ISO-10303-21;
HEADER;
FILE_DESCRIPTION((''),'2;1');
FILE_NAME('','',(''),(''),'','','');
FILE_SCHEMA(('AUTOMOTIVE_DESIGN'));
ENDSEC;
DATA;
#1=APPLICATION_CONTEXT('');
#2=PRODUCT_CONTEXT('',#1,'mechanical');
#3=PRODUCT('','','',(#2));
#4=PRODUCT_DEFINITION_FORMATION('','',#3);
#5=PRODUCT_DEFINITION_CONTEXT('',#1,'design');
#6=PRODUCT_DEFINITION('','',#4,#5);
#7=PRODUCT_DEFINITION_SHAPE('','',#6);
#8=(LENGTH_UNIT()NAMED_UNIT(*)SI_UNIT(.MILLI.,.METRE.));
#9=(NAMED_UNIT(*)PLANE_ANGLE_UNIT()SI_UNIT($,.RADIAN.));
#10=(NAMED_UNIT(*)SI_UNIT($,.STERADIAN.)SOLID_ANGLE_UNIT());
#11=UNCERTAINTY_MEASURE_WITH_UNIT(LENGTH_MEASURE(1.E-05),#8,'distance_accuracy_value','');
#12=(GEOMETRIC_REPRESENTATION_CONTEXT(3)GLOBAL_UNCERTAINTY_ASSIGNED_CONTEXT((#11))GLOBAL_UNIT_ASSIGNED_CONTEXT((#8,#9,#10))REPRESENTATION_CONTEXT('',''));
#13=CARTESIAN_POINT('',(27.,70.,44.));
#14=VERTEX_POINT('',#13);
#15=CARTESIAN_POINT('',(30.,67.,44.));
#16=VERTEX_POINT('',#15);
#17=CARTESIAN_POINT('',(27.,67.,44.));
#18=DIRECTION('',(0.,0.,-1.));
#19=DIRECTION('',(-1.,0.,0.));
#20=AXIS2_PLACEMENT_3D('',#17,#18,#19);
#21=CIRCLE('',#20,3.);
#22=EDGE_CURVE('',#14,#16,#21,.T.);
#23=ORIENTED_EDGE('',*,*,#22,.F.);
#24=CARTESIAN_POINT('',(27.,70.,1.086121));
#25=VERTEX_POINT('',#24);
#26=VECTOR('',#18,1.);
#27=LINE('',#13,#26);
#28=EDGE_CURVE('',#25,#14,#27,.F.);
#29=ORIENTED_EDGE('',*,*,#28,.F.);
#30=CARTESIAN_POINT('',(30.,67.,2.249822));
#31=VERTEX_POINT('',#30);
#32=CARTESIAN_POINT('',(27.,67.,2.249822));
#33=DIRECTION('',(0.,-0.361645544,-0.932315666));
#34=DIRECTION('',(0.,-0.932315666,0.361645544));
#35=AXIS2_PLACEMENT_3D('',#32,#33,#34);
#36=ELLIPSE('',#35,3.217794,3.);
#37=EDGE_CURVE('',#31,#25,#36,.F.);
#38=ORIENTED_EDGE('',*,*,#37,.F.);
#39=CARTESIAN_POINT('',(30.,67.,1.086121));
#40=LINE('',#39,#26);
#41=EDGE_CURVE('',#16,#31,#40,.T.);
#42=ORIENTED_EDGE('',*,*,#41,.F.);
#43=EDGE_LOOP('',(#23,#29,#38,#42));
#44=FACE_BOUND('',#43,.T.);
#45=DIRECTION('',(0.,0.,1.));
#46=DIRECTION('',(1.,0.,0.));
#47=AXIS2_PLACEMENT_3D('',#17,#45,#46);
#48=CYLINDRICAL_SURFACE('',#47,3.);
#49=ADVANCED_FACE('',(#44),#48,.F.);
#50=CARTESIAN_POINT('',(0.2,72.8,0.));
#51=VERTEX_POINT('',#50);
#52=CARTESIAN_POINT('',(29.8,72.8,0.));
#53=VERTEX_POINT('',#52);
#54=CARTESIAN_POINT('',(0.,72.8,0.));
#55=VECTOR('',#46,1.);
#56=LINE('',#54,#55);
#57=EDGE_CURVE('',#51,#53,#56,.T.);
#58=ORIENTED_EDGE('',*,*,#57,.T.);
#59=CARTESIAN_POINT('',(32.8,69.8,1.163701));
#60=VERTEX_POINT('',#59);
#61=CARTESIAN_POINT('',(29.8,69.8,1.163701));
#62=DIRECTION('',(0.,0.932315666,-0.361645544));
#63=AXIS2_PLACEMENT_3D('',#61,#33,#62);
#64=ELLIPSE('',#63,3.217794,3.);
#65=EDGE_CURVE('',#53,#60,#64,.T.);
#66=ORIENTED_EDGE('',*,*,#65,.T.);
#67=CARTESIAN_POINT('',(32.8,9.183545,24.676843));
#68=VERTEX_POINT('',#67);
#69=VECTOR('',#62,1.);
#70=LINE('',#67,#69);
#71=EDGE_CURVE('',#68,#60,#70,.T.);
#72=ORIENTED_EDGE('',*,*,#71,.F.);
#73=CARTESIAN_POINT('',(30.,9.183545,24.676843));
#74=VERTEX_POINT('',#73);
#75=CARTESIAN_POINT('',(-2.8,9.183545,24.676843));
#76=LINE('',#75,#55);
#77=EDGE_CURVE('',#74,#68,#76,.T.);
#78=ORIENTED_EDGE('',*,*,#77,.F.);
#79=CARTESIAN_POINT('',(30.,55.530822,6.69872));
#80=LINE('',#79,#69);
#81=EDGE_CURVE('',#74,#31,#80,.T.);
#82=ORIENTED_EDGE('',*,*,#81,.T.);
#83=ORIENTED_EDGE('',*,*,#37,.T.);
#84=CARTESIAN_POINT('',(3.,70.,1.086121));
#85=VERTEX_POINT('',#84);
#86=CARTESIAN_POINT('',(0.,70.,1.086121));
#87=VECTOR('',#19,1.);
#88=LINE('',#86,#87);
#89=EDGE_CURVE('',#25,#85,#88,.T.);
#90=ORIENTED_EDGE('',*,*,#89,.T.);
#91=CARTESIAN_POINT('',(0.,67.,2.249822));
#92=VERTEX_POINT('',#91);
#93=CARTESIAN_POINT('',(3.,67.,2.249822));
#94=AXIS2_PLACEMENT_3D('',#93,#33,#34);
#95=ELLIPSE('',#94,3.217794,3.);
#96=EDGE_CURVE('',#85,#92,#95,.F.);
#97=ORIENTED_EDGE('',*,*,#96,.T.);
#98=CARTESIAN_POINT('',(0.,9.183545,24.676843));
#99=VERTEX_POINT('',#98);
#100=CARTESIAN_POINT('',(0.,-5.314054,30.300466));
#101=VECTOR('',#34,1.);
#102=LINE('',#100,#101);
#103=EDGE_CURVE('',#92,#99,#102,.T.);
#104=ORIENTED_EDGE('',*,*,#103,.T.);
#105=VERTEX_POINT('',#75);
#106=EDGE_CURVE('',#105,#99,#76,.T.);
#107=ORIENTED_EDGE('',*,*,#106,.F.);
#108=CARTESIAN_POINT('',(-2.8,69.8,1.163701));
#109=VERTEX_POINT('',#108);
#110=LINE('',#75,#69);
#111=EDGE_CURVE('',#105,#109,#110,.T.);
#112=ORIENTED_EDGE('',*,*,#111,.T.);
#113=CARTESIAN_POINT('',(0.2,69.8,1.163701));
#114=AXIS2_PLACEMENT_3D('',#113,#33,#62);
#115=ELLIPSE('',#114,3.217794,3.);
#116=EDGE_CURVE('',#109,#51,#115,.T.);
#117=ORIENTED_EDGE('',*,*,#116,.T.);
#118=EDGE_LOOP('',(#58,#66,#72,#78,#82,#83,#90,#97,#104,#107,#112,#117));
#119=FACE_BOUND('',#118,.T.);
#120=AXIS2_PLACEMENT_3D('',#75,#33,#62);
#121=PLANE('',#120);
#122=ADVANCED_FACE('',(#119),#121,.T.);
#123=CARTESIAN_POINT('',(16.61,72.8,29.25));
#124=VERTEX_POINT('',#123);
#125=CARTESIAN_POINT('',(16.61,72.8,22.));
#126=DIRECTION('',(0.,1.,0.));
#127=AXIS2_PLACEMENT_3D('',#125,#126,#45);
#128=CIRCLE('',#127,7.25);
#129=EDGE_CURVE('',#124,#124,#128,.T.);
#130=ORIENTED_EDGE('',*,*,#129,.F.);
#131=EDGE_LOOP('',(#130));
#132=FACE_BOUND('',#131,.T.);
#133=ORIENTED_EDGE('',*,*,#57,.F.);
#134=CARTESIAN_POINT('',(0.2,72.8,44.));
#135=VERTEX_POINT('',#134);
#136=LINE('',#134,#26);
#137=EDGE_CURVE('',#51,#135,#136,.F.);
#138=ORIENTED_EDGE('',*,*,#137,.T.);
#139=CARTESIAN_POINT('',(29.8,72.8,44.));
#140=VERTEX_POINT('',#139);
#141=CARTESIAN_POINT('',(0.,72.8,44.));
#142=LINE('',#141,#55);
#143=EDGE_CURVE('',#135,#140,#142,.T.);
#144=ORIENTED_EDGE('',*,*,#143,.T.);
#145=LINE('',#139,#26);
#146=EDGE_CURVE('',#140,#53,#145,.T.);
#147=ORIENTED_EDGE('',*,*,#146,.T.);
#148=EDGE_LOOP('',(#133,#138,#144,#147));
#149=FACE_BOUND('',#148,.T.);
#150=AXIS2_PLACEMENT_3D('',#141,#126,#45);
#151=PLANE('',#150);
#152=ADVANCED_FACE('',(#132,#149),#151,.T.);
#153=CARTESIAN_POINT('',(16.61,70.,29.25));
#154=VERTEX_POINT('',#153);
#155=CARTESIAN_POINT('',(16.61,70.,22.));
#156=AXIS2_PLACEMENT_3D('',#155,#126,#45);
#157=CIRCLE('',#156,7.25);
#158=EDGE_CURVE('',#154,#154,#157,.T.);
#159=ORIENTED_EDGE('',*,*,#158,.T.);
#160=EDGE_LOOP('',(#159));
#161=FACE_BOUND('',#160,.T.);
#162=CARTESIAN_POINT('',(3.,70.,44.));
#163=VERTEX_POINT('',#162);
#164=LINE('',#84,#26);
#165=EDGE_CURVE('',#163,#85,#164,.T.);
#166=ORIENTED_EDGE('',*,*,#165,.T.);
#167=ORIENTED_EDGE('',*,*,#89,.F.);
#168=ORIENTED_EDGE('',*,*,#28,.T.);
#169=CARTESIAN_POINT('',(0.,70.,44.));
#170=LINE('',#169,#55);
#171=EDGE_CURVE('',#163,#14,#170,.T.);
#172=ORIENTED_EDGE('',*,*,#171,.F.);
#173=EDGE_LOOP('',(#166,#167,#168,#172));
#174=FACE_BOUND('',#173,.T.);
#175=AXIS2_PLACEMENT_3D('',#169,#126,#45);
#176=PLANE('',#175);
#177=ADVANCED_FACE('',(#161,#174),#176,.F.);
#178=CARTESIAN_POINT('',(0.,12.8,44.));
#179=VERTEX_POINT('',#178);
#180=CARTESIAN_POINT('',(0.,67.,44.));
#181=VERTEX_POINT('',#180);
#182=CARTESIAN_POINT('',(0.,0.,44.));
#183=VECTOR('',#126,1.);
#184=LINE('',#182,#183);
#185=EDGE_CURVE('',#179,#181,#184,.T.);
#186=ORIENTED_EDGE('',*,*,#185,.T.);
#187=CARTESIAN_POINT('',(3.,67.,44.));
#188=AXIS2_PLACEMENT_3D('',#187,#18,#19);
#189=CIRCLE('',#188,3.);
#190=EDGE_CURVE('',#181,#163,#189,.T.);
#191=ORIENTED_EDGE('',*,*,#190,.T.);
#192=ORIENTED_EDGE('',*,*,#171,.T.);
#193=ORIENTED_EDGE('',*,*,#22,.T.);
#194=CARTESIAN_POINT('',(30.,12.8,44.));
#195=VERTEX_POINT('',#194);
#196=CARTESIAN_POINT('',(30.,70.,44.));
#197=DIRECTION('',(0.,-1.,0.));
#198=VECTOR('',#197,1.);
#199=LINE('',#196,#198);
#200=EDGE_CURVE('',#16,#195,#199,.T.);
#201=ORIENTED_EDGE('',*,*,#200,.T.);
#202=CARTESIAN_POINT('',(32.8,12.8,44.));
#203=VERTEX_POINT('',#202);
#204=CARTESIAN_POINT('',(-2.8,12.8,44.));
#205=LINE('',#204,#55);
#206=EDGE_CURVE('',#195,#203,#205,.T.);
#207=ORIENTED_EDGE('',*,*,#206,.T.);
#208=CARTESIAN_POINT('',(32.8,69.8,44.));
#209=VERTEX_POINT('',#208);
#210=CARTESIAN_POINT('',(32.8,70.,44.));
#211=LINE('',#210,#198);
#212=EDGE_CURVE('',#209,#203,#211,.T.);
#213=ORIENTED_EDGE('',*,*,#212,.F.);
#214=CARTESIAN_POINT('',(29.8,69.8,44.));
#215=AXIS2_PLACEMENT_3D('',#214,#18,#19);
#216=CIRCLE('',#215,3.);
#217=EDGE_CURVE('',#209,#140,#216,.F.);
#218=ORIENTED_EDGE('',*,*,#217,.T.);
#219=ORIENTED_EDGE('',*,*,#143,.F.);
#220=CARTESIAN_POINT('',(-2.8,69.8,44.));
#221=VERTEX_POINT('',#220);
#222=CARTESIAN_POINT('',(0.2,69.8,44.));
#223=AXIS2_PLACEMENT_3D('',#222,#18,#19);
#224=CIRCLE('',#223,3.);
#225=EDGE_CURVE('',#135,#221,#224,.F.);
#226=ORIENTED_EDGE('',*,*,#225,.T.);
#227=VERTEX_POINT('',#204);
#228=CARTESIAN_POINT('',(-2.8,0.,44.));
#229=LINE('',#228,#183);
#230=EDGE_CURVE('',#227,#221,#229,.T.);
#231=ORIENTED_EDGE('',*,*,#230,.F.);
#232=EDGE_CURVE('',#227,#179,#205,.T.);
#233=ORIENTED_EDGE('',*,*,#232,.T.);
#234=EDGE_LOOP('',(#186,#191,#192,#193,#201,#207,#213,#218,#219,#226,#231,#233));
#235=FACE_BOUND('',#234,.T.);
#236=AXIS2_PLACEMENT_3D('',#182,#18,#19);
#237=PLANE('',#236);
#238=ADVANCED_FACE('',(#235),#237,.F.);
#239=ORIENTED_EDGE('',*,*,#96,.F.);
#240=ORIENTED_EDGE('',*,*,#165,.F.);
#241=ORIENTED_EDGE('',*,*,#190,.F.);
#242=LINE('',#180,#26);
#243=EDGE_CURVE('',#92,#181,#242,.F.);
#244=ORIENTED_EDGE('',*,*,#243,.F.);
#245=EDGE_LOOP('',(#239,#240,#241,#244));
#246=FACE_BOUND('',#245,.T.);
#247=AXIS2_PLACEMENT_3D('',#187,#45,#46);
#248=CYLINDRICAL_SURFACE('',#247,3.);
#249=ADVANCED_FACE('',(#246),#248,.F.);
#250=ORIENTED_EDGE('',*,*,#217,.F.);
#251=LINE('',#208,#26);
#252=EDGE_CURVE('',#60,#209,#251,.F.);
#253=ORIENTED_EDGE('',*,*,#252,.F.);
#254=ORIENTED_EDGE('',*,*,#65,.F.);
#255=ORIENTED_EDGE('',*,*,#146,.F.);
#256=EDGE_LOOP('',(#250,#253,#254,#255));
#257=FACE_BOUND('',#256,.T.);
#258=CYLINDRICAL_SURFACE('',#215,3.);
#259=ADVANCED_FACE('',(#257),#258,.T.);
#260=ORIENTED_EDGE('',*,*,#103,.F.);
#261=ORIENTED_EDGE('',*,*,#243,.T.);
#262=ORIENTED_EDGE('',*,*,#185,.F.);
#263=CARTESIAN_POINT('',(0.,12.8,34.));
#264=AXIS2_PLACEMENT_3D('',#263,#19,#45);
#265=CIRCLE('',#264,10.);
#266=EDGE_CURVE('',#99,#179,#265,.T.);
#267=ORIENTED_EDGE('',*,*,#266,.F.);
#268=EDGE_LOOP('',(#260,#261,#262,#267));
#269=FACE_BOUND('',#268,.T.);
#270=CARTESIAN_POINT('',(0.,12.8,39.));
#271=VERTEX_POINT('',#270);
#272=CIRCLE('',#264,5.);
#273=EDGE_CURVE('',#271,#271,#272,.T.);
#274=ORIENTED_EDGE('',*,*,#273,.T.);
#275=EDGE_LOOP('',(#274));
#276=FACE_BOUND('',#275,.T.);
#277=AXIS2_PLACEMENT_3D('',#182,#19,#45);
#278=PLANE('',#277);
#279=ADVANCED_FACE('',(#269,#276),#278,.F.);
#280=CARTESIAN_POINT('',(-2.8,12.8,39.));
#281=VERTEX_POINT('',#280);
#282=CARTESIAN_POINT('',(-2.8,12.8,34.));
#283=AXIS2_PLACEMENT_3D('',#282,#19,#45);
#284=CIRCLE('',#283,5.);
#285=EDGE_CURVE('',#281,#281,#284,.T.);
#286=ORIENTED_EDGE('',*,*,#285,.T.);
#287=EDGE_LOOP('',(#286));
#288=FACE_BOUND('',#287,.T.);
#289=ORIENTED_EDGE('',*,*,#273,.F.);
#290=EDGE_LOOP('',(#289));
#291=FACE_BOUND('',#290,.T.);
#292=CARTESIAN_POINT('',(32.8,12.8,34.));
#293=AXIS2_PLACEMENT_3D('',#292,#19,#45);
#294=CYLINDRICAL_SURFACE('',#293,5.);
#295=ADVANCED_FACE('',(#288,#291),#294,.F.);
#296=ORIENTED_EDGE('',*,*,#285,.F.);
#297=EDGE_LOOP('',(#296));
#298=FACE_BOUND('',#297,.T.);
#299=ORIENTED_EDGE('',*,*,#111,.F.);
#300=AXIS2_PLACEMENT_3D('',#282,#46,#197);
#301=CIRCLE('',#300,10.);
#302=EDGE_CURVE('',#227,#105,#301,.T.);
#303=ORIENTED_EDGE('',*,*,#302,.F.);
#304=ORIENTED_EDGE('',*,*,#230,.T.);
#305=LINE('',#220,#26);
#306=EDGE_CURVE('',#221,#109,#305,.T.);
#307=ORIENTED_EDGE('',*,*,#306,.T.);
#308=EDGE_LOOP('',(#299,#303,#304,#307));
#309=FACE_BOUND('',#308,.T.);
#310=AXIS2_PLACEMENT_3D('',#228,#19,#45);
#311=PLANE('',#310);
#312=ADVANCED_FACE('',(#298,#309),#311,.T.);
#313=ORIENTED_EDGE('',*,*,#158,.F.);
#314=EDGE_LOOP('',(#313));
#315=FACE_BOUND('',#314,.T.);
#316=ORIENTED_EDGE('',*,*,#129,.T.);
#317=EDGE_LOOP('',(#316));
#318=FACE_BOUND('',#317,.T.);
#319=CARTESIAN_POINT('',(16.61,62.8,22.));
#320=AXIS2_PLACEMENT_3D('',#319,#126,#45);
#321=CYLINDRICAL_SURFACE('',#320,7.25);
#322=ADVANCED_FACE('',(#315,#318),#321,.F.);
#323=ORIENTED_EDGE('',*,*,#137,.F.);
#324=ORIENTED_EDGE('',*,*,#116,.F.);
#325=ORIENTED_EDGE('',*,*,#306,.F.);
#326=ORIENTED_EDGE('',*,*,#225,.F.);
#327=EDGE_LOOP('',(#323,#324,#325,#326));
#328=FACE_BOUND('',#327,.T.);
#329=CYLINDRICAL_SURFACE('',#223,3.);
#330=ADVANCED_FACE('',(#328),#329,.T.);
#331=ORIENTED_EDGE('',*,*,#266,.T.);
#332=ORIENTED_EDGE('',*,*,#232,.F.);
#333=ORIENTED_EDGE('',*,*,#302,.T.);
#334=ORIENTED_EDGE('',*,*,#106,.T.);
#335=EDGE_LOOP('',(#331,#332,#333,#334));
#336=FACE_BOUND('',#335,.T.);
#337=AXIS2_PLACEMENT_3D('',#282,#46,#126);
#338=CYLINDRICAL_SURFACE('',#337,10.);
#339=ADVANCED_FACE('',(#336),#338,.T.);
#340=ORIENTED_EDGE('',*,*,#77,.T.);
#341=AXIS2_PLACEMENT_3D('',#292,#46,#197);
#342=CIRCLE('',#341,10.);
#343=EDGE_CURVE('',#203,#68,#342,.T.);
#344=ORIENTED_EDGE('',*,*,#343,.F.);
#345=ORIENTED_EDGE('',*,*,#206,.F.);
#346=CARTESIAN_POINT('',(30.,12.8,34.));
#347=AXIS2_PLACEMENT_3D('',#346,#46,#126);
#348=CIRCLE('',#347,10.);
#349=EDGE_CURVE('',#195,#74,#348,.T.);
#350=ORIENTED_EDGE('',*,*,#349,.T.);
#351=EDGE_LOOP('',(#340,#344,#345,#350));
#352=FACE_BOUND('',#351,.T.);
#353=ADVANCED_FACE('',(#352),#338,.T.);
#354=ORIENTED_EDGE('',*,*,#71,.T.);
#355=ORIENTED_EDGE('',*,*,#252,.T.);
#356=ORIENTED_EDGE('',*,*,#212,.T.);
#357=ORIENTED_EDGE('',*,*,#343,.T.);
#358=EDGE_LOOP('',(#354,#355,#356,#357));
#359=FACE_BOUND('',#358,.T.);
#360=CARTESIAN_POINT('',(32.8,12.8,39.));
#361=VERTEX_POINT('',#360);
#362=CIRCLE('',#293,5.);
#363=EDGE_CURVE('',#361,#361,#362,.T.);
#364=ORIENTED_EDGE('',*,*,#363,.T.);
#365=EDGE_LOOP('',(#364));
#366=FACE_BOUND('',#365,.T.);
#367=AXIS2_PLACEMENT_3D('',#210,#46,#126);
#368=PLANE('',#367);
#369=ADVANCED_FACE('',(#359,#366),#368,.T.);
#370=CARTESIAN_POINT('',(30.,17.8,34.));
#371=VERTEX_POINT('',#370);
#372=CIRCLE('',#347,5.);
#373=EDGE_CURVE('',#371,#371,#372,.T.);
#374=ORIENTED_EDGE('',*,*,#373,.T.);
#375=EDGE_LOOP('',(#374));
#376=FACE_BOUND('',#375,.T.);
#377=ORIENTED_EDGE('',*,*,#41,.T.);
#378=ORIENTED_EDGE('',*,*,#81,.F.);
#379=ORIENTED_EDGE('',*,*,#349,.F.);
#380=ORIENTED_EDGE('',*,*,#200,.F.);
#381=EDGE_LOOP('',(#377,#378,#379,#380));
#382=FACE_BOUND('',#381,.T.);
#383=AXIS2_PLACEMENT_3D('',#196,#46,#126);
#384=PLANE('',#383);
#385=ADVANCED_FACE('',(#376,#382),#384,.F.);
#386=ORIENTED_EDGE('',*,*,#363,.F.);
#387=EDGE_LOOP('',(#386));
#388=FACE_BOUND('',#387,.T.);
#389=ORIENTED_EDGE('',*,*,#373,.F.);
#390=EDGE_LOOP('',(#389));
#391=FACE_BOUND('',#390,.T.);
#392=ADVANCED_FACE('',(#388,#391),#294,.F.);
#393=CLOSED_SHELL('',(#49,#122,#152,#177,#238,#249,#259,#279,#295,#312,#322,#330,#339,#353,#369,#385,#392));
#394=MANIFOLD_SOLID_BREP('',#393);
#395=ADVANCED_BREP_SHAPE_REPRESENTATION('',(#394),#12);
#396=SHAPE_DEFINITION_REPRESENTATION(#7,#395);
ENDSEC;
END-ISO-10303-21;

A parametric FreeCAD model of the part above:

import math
import FreeCAD as App
import Part
import Sketcher

V = App.Vector
Q = App.Units.Quantity


def edges_at(feature, points):
    """Names of the edges that pass closest to the given points."""
    edges = feature.Shape.Edges
    near = lambda p: min(range(len(edges)), key=lambda i: edges[i].distToShape(Part.Vertex(*p))[0])
    return sorted({f"Edge{near(p) + 1}" for p in points})

doc = App.newDocument("Part")
body = doc.addObject("PartDesign::Body", "Body")

# Sketch on XY plane
sketch1 = body.newObject("Sketcher::SketchObject", "Sketch")
sketch1.AttachmentSupport = (doc.getObject("XY_Plane"), [""])
sketch1.MapMode = "FlatFace"
sketch1.addGeometry([
    Part.LineSegment(V(0, 0, 0), V(0, 70, 0)),  # 0
    Part.LineSegment(V(0, 70, 0), V(30, 70, 0)),  # 1
    Part.LineSegment(V(30, 70, 0), V(30, 0, 0)),  # 2
    Part.LineSegment(V(30, 0, 0), V(32.8, 0, 0)),  # 3
    Part.LineSegment(V(32.8, 0, 0), V(32.8, 72.8, 0)),  # 4
    Part.LineSegment(V(32.8, 72.8, 0), V(-2.8, 72.8, 0)),  # 5
    Part.LineSegment(V(-2.8, 72.8, 0), V(-2.8, 0, 0)),  # 6
    Part.LineSegment(V(-2.8, 0, 0), V(0, 0, 0)),  # 7
], False)
sketch1.addConstraint([
    Sketcher.Constraint("Coincident", 0, 2, 1, 1),
    Sketcher.Constraint("Coincident", 1, 2, 2, 1),
    Sketcher.Constraint("Coincident", 2, 2, 3, 1),
    Sketcher.Constraint("Coincident", 3, 2, 4, 1),
    Sketcher.Constraint("Coincident", 4, 2, 5, 1),
    Sketcher.Constraint("Coincident", 5, 2, 6, 1),
    Sketcher.Constraint("Coincident", 6, 2, 7, 1),
    Sketcher.Constraint("Coincident", 7, 2, 0, 1),
    Sketcher.Constraint("Vertical", 0),
    Sketcher.Constraint("Horizontal", 1),
    Sketcher.Constraint("Vertical", 2),
    Sketcher.Constraint("Horizontal", 3),
    Sketcher.Constraint("Vertical", 4),
    Sketcher.Constraint("Horizontal", 5),
    Sketcher.Constraint("Vertical", 6),
    Sketcher.Constraint("Horizontal", 7),
    Sketcher.Constraint("Coincident", 7, 2, -1, 1),
    Sketcher.Constraint("PointOnObject", 2, 2, -1),
    Sketcher.Constraint("Equal", 3, 7),
    Sketcher.Constraint("DistanceX", 1, 1, 1, 2, Q("30 mm")),
    Sketcher.Constraint("DistanceY", 0, 1, 0, 2, Q("70 mm")),
    Sketcher.Constraint("DistanceX", 3, 1, 3, 2, Q("2.8 mm")),
    Sketcher.Constraint("DistanceY", 4, 1, 4, 2, Q("72.8 mm")),
])
pad1 = body.newObject("PartDesign::Pad", "Pad")
pad1.Profile = sketch1
pad1.Length = 44

# Sketch on YZ plane
sketch2 = body.newObject("Sketcher::SketchObject", "Sketch001")
sketch2.AttachmentSupport = (doc.getObject("YZ_Plane"), [""])
sketch2.MapMode = "FlatFace"
sketch2.AttachmentOffset = App.Placement(V(0, 0, 32.8), App.Rotation())
sketch2.addGeometry([
    Part.LineSegment(V(83.021, 54.221, 0), V(-10.221, 54.221, 0)),  # 0
    Part.LineSegment(V(-10.221, 54.221, 0), V(-10.221, -10.221, 0)),  # 1
    Part.LineSegment(V(-10.221, -10.221, 0), V(83.021, -10.221, 0)),  # 2
    Part.LineSegment(V(83.021, -10.221, 0), V(83.021, 54.221, 0)),  # 3
    Part.ArcOfCircle(Part.Circle(V(12.8, 34, 0), V(0, 0, 1), 10), math.radians(90), math.radians(248.798711)),  # 4
    Part.LineSegment(V(12.8, 44, 0), V(72.8, 44, 0)),  # 5
    Part.LineSegment(V(72.8, 44, 0), V(72.8, 0, 0)),  # 6
    Part.LineSegment(V(72.8, 0, 0), V(9.183545, 24.676843, 0)),  # 7
], False)
sketch2.addConstraint([
    Sketcher.Constraint("Coincident", 0, 2, 1, 1),
    Sketcher.Constraint("Coincident", 1, 2, 2, 1),
    Sketcher.Constraint("Coincident", 2, 2, 3, 1),
    Sketcher.Constraint("Coincident", 3, 2, 0, 1),
    Sketcher.Constraint("Tangent", 4, 1, 5, 1),
    Sketcher.Constraint("Coincident", 5, 2, 6, 1),
    Sketcher.Constraint("Coincident", 6, 2, 7, 1),
    Sketcher.Constraint("Tangent", 7, 2, 4, 2),
    Sketcher.Constraint("Horizontal", 0),
    Sketcher.Constraint("Vertical", 1),
    Sketcher.Constraint("Horizontal", 2),
    Sketcher.Constraint("Vertical", 3),
    Sketcher.Constraint("Horizontal", 5),
    Sketcher.Constraint("Vertical", 6),
    Sketcher.Constraint("PointOnObject", 6, 2, -1),
    Sketcher.Constraint("Radius", 4, Q("10 mm")),
    Sketcher.Constraint("DistanceX", 5, 1, 5, 2, Q("60 mm")),
    Sketcher.Constraint("DistanceY", 6, 2, 6, 1, Q("44 mm")),
    Sketcher.Constraint("DistanceX", -1, 1, 4, 3, Q("12.8 mm")),
    Sketcher.Constraint("DistanceX", 0, 2, 0, 1, Q("93.242 mm")),
    Sketcher.Constraint("DistanceY", 1, 2, 1, 1, Q("64.442 mm")),
    Sketcher.Constraint("DistanceX", 0, 2, -1, 1, Q("10.221 mm")),
    Sketcher.Constraint("DistanceY", -1, 1, 0, 2, Q("54.221 mm")),
])
pocket1 = body.newObject("PartDesign::Pocket", "Pocket")
pocket1.Profile = sketch2
pocket1.Type = "ThroughAll"

# Sketch on YZ plane
sketch3 = body.newObject("Sketcher::SketchObject", "Sketch002")
sketch3.AttachmentSupport = (doc.getObject("YZ_Plane"), [""])
sketch3.MapMode = "FlatFace"
sketch3.AttachmentOffset = App.Placement(V(0, 0, -2.8), App.Rotation())
sketch3.addGeometry(Part.Circle(V(12.8, 34, 0), V(0, 0, 1), 5), False)
sketch3.addConstraint([
    Sketcher.Constraint("Diameter", 0, Q("10 mm")),
    Sketcher.Constraint("DistanceY", -1, 1, 0, 3, Q("34 mm")),
    Sketcher.Constraint("DistanceX", -1, 1, 0, 3, Q("12.8 mm")),
])
pocket2 = body.newObject("PartDesign::Pocket", "Pocket001")
pocket2.Profile = sketch3
pocket2.Type = "ThroughAll"
pocket2.Reversed = True

# Sketch on XZ plane
sketch4 = body.newObject("Sketcher::SketchObject", "Sketch003")
sketch4.AttachmentSupport = (doc.getObject("XZ_Plane"), [""])
sketch4.MapMode = "FlatFace"
sketch4.AttachmentOffset = App.Placement(V(0, 0, -72.8), App.Rotation())
sketch4.addGeometry(Part.Circle(V(16.61, 22, 0), V(0, 0, 1), 7.25), False)
sketch4.addConstraint([
    Sketcher.Constraint("Diameter", 0, Q("14.5 mm")),
    Sketcher.Constraint("DistanceY", -1, 1, 0, 3, Q("22 mm")),
    Sketcher.Constraint("DistanceX", -1, 1, 0, 3, Q("16.61 mm")),
])
pocket3 = body.newObject("PartDesign::Pocket", "Pocket002")
pocket3.Profile = sketch4
pocket3.Length = 10
pocket3.Reversed = True
doc.recompute()

fillet = body.newObject("PartDesign::Fillet", "Fillet")
fillet.Base = (pocket3, edges_at(pocket3, [
    (30, 70, 22.543),
    (0, 70, 22.543),
    (-2.8, 72.8, 22),
    (32.8, 72.8, 22),
]))
fillet.Radius = 3

doc.recompute()
